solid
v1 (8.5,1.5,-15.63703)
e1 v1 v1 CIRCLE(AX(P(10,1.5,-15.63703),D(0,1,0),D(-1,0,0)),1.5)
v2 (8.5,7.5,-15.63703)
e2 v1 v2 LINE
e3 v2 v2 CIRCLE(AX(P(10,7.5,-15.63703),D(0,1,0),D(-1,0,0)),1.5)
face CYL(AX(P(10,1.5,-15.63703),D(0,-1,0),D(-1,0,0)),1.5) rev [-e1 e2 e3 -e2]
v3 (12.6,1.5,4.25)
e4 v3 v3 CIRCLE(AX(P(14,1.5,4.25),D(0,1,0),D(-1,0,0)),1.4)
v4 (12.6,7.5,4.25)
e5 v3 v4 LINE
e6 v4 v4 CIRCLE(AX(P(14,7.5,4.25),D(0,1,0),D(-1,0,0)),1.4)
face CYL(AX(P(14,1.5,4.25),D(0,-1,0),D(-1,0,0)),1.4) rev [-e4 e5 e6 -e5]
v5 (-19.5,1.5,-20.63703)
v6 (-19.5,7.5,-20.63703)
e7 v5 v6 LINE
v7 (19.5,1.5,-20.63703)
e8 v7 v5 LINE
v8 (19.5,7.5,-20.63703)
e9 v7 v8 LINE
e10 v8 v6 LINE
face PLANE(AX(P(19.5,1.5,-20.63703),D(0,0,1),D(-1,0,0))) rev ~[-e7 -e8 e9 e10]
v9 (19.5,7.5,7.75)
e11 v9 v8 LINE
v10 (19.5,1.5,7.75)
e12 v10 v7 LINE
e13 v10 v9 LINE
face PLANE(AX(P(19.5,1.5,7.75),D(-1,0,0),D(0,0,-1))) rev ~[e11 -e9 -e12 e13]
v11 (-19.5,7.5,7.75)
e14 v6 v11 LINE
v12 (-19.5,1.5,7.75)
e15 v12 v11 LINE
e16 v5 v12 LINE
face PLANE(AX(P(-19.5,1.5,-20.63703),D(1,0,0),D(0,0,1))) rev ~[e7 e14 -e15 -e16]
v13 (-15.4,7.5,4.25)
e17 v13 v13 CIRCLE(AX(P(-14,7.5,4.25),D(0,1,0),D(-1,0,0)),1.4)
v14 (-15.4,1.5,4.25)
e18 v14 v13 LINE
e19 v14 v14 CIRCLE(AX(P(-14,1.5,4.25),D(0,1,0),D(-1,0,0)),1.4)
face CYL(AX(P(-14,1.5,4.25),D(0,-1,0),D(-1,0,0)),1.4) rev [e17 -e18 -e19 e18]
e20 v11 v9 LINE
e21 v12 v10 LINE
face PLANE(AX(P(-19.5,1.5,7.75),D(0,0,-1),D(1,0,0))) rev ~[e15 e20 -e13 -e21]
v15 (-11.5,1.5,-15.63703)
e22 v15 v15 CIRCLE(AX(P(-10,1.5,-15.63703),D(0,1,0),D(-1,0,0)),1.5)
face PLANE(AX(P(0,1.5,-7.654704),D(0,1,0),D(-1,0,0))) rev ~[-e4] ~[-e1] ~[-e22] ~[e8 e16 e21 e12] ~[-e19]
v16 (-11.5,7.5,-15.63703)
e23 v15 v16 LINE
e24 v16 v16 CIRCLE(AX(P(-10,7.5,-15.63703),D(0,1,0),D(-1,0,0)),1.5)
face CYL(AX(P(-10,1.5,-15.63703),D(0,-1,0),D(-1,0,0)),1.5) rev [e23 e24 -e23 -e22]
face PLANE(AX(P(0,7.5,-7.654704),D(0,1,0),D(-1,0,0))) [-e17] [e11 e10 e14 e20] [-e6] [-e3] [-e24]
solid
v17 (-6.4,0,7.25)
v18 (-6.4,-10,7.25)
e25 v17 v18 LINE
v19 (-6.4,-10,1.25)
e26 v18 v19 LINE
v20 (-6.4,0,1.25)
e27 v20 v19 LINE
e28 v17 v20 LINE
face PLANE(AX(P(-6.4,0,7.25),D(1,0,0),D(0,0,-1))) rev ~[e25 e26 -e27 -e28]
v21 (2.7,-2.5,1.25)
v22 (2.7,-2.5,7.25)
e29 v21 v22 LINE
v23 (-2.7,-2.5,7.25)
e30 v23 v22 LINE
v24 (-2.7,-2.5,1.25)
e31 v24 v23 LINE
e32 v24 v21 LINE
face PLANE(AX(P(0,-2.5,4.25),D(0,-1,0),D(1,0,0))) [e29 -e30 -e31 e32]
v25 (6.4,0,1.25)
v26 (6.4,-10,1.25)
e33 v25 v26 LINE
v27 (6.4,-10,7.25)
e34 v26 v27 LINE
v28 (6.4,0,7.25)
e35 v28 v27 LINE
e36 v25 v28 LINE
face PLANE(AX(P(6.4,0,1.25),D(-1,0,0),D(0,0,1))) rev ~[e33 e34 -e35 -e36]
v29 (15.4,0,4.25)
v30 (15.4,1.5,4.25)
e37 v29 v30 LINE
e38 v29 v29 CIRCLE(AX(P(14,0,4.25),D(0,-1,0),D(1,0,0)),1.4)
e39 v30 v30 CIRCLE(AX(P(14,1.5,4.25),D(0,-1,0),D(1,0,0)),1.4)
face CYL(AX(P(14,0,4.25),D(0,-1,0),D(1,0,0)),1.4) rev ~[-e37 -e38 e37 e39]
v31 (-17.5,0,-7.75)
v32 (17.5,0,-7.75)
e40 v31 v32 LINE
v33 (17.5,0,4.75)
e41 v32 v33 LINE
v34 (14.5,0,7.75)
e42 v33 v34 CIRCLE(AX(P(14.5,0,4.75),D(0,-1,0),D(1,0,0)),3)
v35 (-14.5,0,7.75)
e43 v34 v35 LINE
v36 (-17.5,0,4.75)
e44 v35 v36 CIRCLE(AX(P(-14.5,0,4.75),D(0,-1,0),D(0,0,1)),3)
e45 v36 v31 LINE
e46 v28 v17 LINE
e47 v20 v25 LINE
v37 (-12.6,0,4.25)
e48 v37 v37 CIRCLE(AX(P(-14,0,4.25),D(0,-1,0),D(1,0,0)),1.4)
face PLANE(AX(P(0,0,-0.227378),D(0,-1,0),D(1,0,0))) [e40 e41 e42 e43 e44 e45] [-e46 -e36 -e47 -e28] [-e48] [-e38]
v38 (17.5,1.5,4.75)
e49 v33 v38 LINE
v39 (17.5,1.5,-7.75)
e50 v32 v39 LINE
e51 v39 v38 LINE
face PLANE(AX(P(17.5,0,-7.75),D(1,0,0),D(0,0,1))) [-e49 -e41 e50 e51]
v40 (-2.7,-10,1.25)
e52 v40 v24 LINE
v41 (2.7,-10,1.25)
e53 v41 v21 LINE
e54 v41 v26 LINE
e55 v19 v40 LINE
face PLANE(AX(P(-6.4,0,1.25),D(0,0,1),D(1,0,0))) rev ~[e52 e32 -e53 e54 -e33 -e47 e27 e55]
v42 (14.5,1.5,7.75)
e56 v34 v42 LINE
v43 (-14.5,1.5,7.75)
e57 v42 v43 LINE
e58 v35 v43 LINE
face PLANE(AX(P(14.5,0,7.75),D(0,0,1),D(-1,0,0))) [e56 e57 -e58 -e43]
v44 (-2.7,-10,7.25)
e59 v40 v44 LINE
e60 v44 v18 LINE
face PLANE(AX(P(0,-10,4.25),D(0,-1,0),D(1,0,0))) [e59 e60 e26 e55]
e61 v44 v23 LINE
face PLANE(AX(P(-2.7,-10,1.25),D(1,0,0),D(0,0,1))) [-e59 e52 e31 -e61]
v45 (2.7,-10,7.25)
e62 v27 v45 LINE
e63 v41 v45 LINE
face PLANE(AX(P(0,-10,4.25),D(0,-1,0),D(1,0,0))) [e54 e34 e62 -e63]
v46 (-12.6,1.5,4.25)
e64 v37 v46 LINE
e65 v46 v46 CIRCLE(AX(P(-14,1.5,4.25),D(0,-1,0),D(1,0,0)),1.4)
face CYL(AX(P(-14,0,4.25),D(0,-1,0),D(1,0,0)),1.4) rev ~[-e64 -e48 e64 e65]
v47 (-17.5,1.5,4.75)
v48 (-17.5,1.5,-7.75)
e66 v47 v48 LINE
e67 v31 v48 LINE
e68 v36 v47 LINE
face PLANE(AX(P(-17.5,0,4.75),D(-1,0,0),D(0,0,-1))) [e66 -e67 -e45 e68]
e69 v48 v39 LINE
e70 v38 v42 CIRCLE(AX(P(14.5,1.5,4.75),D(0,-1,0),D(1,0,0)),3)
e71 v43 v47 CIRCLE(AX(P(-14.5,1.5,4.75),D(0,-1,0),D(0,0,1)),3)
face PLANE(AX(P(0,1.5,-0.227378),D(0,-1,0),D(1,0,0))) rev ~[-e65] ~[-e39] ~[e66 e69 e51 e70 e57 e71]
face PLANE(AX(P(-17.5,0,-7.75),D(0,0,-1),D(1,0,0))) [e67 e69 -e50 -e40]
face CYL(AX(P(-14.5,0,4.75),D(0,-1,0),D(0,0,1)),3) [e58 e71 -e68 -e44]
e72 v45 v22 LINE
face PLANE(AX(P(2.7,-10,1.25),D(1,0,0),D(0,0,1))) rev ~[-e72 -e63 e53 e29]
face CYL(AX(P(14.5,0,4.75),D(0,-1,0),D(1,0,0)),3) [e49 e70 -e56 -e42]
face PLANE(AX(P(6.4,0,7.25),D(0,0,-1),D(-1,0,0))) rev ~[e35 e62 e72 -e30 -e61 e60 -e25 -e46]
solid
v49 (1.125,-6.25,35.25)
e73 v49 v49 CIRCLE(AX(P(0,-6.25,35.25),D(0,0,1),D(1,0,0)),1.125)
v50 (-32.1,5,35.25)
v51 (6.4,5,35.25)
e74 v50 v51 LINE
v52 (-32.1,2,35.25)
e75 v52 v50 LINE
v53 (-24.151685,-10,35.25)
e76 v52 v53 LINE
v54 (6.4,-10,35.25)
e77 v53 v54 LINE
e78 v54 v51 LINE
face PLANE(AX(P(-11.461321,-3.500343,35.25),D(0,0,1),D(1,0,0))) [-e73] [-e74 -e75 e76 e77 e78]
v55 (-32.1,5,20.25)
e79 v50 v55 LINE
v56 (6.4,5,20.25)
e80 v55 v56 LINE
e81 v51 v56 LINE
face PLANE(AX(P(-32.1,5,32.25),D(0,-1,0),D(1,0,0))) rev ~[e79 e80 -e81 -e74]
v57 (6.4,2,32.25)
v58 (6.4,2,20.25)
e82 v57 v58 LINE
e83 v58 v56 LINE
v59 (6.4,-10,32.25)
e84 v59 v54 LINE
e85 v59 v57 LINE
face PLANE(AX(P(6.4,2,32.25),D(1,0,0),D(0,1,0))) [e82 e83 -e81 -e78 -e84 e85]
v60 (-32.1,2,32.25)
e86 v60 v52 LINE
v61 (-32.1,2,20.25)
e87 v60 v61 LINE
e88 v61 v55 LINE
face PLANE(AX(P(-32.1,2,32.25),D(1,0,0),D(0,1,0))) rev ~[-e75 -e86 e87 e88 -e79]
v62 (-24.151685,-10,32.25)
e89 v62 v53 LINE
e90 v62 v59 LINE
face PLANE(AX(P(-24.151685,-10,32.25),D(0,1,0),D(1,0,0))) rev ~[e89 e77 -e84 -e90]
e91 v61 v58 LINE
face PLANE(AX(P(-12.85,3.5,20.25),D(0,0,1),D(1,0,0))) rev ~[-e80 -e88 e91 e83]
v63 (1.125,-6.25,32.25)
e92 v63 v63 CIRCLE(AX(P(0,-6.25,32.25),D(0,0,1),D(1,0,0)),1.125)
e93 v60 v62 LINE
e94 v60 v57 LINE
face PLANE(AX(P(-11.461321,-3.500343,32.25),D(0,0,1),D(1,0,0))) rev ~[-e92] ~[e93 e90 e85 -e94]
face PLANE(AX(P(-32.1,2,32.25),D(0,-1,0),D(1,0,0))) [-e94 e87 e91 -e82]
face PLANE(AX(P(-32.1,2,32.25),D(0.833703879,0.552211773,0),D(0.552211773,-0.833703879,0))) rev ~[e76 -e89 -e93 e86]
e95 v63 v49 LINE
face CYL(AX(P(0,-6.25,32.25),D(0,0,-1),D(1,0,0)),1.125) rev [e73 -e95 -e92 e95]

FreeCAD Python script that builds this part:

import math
import FreeCAD as App
import Part
import Sketcher

V = App.Vector


def add_polygon(sketch, points):
    """Adds a closed chain of lines whose ends are joined by coincident constraints."""
    first, n = sketch.GeometryCount, len(points)
    for a, b in zip(points, points[1:] + points[:1]):
        sketch.addGeometry(Part.LineSegment(App.Vector(*a, 0), App.Vector(*b, 0)), False)
    for i in range(n):
        sketch.addConstraint(Sketcher.Constraint("Coincident", first + i, 2, first + (i + 1) % n, 1))

doc = App.newDocument("Part")
body = doc.addObject("PartDesign::Body", "Body")

# Sketch on XZ plane
sketch1 = body.newObject("Sketcher::SketchObject", "Sketch")
sketch1.AttachmentSupport = (doc.getObject("XZ_Plane"), [""])
sketch1.MapMode = "FlatFace"
sketch1.addGeometry(Part.ArcOfCircle(Part.Circle(V(14.5, 4.75, 0), V(0, 0, 1), 3), math.radians(0), math.radians(90)), False)
sketch1.addGeometry(Part.LineSegment(V(14.5, 7.75, 0), V(-14.5, 7.75, 0)), False)
sketch1.addGeometry(Part.ArcOfCircle(Part.Circle(V(-14.5, 4.75, 0), V(0, 0, 1), 3), math.radians(90), math.radians(180)), False)
sketch1.addGeometry(Part.LineSegment(V(-17.5, 4.75, 0), V(-17.5, -7.75, 0)), False)
sketch1.addGeometry(Part.LineSegment(V(-17.5, -7.75, 0), V(17.5, -7.75, 0)), False)
sketch1.addGeometry(Part.LineSegment(V(17.5, -7.75, 0), V(17.5, 4.75, 0)), False)
sketch1.addGeometry(Part.Circle(V(-14, 4.25, 0), V(0, 0, 1), 1.4), False)
sketch1.addGeometry(Part.Circle(V(14, 4.25, 0), V(0, 0, 1), 1.4), False)
sketch1.addConstraint(Sketcher.Constraint("Tangent", 0, 2, 1, 1))
sketch1.addConstraint(Sketcher.Constraint("Tangent", 1, 2, 2, 1))
sketch1.addConstraint(Sketcher.Constraint("Tangent", 2, 2, 3, 1))
sketch1.addConstraint(Sketcher.Constraint("Coincident", 3, 2, 4, 1))
sketch1.addConstraint(Sketcher.Constraint("Coincident", 4, 2, 5, 1))
sketch1.addConstraint(Sketcher.Constraint("Tangent", 5, 2, 0, 1))
sketch1.addConstraint(Sketcher.Constraint("Horizontal", 1))
sketch1.addConstraint(Sketcher.Constraint("Vertical", 3))
sketch1.addConstraint(Sketcher.Constraint("Horizontal", 4))
sketch1.addConstraint(Sketcher.Constraint("Vertical", 5))
sketch1.addConstraint(Sketcher.Constraint("Equal", 0, 2))
sketch1.addConstraint(Sketcher.Constraint("Equal", 6, 7))
sketch1.addConstraint(Sketcher.Constraint("Symmetric", 6, 3, 7, 3, -2))
sketch1.addConstraint(Sketcher.Constraint("Radius", 0, 3.0))
sketch1.addConstraint(Sketcher.Constraint("Diameter", 6, 2.8))
sketch1.addConstraint(Sketcher.Constraint("DistanceX", 1, 2, 1, 1, 29.0))
sketch1.addConstraint(Sketcher.Constraint("DistanceY", 3, 2, 3, 1, 12.5))
sketch1.addConstraint(Sketcher.Constraint("DistanceX", 6, 3, -1, 1, 14.0))
sketch1.addConstraint(Sketcher.Constraint("DistanceY", 3, 2, 6, 3, 12.0))
sketch1.addConstraint(Sketcher.Constraint("DistanceX", -1, 1, 0, 3, 14.5))
sketch1.addConstraint(Sketcher.Constraint("DistanceY", -1, 1, 0, 3, 4.75))
pad1 = body.newObject("PartDesign::Pad", "Pad")
pad1.Profile = sketch1
pad1.Length = 1.5
pad1.Reversed = True

# Sketch on XZ plane
sketch2 = body.newObject("Sketcher::SketchObject", "Sketch001")
sketch2.AttachmentSupport = (doc.getObject("XZ_Plane"), [""])
sketch2.MapMode = "FlatFace"
add_polygon(sketch2, [(-6.4, 1.25), (6.4, 1.25), (6.4, 7.25), (-6.4, 7.25)])  # lines 0-3
sketch2.addConstraint(Sketcher.Constraint("Horizontal", 0))
sketch2.addConstraint(Sketcher.Constraint("Vertical", 1))
sketch2.addConstraint(Sketcher.Constraint("Horizontal", 2))
sketch2.addConstraint(Sketcher.Constraint("Vertical", 3))
sketch2.addConstraint(Sketcher.Constraint("DistanceY", 1, 1, 1, 2, 6.0))
sketch2.addConstraint(Sketcher.Constraint("DistanceX", 0, 1, 0, 2, 12.8))
sketch2.addConstraint(Sketcher.Constraint("DistanceX", -1, 1, 0, 2, 6.4))
sketch2.addConstraint(Sketcher.Constraint("DistanceY", -1, 1, 0, 2, 1.25))
pad2 = body.newObject("PartDesign::Pad", "Pad001")
pad2.Profile = sketch2
pad2.Length = 10

# Sketch on XZ plane
sketch3 = body.newObject("Sketcher::SketchObject", "Sketch002")
sketch3.AttachmentSupport = (doc.getObject("XZ_Plane"), [""])
sketch3.MapMode = "FlatFace"
sketch3.AttachmentOffset = App.Placement(V(0, 0, 10), App.Rotation())
add_polygon(sketch3, [(-2.7, 7.25), (-2.7, 1.25), (2.7, 1.25), (2.7, 7.25)])  # lines 0-3
sketch3.addConstraint(Sketcher.Constraint("Vertical", 0))
sketch3.addConstraint(Sketcher.Constraint("Horizontal", 1))
sketch3.addConstraint(Sketcher.Constraint("Vertical", 2))
sketch3.addConstraint(Sketcher.Constraint("Horizontal", 3))
sketch3.addConstraint(Sketcher.Constraint("DistanceY", 0, 2, 0, 1, 6.0))
sketch3.addConstraint(Sketcher.Constraint("DistanceX", 1, 1, 1, 2, 5.4))
sketch3.addConstraint(Sketcher.Constraint("DistanceX", 0, 2, -1, 1, 2.7))
sketch3.addConstraint(Sketcher.Constraint("DistanceY", -1, 1, 0, 2, 1.25))
pocket1 = body.newObject("PartDesign::Pocket", "Pocket")
pocket1.Profile = sketch3
pocket1.Length = 7.5
body2 = doc.addObject("PartDesign::Body", "Body001")

# Sketch on XY plane
sketch4 = body2.newObject("Sketcher::SketchObject", "Sketch003")
sketch4.AttachmentSupport = (doc.getObject("XY_Plane001"), [""])
sketch4.MapMode = "FlatFace"
sketch4.AttachmentOffset = App.Placement(V(0, 0, 32.25), App.Rotation())
add_polygon(sketch4, [(-24.151685, -10), (6.4, -10), (6.4, 5), (-32.1, 5), (-32.1, 2)])  # lines 0-4
sketch4.addGeometry(Part.Circle(V(0, -6.25, 0), V(0, 0, 1), 1.125), False)  # 5
sketch4.addConstraint(Sketcher.Constraint("Horizontal", 0))
sketch4.addConstraint(Sketcher.Constraint("Vertical", 1))
sketch4.addConstraint(Sketcher.Constraint("Horizontal", 2))
sketch4.addConstraint(Sketcher.Constraint("Vertical", 3))
sketch4.addConstraint(Sketcher.Constraint("PointOnObject", 5, 3, -2))
sketch4.addConstraint(Sketcher.Constraint("Diameter", 5, 2.25))
sketch4.addConstraint(Sketcher.Constraint("DistanceY", 1, 1, 1, 2, 15.0))
sketch4.addConstraint(Sketcher.Constraint("DistanceY", 3, 2, 3, 1, 3.0))
sketch4.addConstraint(Sketcher.Constraint("DistanceX", 2, 2, 2, 1, 38.5))
sketch4.addConstraint(Sketcher.Constraint("DistanceY", 0, 2, -1, 1, 10.0))
sketch4.addConstraint(Sketcher.Constraint("DistanceX", -1, 1, 0, 2, 6.4))
sketch4.addConstraint(Sketcher.Constraint("DistanceY", 5, 3, -1, 1, 6.25))
sketch4.addConstraint(Sketcher.Constraint("Distance", 4, 14.3936))
pad3 = body2.newObject("PartDesign::Pad", "Pad002")
pad3.Profile = sketch4
pad3.Length = 3

# Sketch on XY plane
sketch5 = body2.newObject("Sketcher::SketchObject", "Sketch004")
sketch5.AttachmentSupport = (doc.getObject("XY_Plane001"), [""])
sketch5.MapMode = "FlatFace"
sketch5.AttachmentOffset = App.Placement(V(0, 0, 32.25), App.Rotation())
add_polygon(sketch5, [(-32.1, 5), (-32.1, 2), (6.4, 2), (6.4, 5)])  # lines 0-3
sketch5.addConstraint(Sketcher.Constraint("Vertical", 0))
sketch5.addConstraint(Sketcher.Constraint("Horizontal", 1))
sketch5.addConstraint(Sketcher.Constraint("Vertical", 2))
sketch5.addConstraint(Sketcher.Constraint("Horizontal", 3))
sketch5.addConstraint(Sketcher.Constraint("DistanceY", 0, 2, 0, 1, 3.0))
sketch5.addConstraint(Sketcher.Constraint("DistanceX", 1, 1, 1, 2, 38.5))
sketch5.addConstraint(Sketcher.Constraint("DistanceY", -1, 1, 0, 2, 2.0))
sketch5.addConstraint(Sketcher.Constraint("DistanceX", 0, 2, -1, 1, 32.1))
pad4 = body2.newObject("PartDesign::Pad", "Pad003")
pad4.Profile = sketch5
pad4.Length = 12
pad4.Reversed = True
body3 = doc.addObject("PartDesign::Body", "Body002")

# Sketch on XZ plane
sketch6 = body3.newObject("Sketcher::SketchObject", "Sketch005")
sketch6.AttachmentSupport = (doc.getObject("XZ_Plane002"), [""])
sketch6.MapMode = "FlatFace"
sketch6.AttachmentOffset = App.Placement(V(0, 0, -1.5), App.Rotation())
add_polygon(sketch6, [(-19.5, 7.75), (19.5, 7.75), (19.5, -20.63703), (-19.5, -20.63703)])  # lines 0-3
sketch6.addGeometry(Part.Circle(V(10, -15.63703, 0), V(0, 0, 1), 1.5), False)  # 4
sketch6.addGeometry(Part.Circle(V(-10, -15.63703, 0), V(0, 0, 1), 1.5), False)  # 5
sketch6.addGeometry(Part.Circle(V(14, 4.25, 0), V(0, 0, 1), 1.4), False)  # 6
sketch6.addGeometry(Part.Circle(V(-14, 4.25, 0), V(0, 0, 1), 1.4), False)  # 7
sketch6.addConstraint(Sketcher.Constraint("Horizontal", 0))
sketch6.addConstraint(Sketcher.Constraint("Vertical", 1))
sketch6.addConstraint(Sketcher.Constraint("Horizontal", 2))
sketch6.addConstraint(Sketcher.Constraint("Vertical", 3))
sketch6.addConstraint(Sketcher.Constraint("Equal", 4, 5))
sketch6.addConstraint(Sketcher.Constraint("Equal", 6, 7))
sketch6.addConstraint(Sketcher.Constraint("Symmetric", 4, 3, 5, 3, -2))
sketch6.addConstraint(Sketcher.Constraint("Symmetric", 6, 3, 7, 3, -2))
sketch6.addConstraint(Sketcher.Constraint("Diameter", 4, 3.0))
sketch6.addConstraint(Sketcher.Constraint("Diameter", 6, 2.8))
sketch6.addConstraint(Sketcher.Constraint("DistanceX", 0, 1, 0, 2, 39.0))
sketch6.addConstraint(Sketcher.Constraint("DistanceX", -1, 1, 4, 3, 10.0))
sketch6.addConstraint(Sketcher.Constraint("DistanceX", -1, 1, 6, 3, 14.0))
sketch6.addConstraint(Sketcher.Constraint("DistanceY", 1, 2, 4, 3, 5.0))
sketch6.addConstraint(Sketcher.Constraint("DistanceX", -1, 1, 0, 2, 19.5))
sketch6.addConstraint(Sketcher.Constraint("DistanceY", 6, 3, 0, 2, 3.5))
sketch6.addConstraint(Sketcher.Constraint("DistanceY", -1, 1, 6, 3, 4.25))
sketch6.addConstraint(Sketcher.Constraint("DistanceY", 1, 2, 1, 1, 28.38703))
pad5 = body3.newObject("PartDesign::Pad", "Pad004")
pad5.Profile = sketch6
pad5.Length = 6
pad5.Reversed = True

doc.recompute()
